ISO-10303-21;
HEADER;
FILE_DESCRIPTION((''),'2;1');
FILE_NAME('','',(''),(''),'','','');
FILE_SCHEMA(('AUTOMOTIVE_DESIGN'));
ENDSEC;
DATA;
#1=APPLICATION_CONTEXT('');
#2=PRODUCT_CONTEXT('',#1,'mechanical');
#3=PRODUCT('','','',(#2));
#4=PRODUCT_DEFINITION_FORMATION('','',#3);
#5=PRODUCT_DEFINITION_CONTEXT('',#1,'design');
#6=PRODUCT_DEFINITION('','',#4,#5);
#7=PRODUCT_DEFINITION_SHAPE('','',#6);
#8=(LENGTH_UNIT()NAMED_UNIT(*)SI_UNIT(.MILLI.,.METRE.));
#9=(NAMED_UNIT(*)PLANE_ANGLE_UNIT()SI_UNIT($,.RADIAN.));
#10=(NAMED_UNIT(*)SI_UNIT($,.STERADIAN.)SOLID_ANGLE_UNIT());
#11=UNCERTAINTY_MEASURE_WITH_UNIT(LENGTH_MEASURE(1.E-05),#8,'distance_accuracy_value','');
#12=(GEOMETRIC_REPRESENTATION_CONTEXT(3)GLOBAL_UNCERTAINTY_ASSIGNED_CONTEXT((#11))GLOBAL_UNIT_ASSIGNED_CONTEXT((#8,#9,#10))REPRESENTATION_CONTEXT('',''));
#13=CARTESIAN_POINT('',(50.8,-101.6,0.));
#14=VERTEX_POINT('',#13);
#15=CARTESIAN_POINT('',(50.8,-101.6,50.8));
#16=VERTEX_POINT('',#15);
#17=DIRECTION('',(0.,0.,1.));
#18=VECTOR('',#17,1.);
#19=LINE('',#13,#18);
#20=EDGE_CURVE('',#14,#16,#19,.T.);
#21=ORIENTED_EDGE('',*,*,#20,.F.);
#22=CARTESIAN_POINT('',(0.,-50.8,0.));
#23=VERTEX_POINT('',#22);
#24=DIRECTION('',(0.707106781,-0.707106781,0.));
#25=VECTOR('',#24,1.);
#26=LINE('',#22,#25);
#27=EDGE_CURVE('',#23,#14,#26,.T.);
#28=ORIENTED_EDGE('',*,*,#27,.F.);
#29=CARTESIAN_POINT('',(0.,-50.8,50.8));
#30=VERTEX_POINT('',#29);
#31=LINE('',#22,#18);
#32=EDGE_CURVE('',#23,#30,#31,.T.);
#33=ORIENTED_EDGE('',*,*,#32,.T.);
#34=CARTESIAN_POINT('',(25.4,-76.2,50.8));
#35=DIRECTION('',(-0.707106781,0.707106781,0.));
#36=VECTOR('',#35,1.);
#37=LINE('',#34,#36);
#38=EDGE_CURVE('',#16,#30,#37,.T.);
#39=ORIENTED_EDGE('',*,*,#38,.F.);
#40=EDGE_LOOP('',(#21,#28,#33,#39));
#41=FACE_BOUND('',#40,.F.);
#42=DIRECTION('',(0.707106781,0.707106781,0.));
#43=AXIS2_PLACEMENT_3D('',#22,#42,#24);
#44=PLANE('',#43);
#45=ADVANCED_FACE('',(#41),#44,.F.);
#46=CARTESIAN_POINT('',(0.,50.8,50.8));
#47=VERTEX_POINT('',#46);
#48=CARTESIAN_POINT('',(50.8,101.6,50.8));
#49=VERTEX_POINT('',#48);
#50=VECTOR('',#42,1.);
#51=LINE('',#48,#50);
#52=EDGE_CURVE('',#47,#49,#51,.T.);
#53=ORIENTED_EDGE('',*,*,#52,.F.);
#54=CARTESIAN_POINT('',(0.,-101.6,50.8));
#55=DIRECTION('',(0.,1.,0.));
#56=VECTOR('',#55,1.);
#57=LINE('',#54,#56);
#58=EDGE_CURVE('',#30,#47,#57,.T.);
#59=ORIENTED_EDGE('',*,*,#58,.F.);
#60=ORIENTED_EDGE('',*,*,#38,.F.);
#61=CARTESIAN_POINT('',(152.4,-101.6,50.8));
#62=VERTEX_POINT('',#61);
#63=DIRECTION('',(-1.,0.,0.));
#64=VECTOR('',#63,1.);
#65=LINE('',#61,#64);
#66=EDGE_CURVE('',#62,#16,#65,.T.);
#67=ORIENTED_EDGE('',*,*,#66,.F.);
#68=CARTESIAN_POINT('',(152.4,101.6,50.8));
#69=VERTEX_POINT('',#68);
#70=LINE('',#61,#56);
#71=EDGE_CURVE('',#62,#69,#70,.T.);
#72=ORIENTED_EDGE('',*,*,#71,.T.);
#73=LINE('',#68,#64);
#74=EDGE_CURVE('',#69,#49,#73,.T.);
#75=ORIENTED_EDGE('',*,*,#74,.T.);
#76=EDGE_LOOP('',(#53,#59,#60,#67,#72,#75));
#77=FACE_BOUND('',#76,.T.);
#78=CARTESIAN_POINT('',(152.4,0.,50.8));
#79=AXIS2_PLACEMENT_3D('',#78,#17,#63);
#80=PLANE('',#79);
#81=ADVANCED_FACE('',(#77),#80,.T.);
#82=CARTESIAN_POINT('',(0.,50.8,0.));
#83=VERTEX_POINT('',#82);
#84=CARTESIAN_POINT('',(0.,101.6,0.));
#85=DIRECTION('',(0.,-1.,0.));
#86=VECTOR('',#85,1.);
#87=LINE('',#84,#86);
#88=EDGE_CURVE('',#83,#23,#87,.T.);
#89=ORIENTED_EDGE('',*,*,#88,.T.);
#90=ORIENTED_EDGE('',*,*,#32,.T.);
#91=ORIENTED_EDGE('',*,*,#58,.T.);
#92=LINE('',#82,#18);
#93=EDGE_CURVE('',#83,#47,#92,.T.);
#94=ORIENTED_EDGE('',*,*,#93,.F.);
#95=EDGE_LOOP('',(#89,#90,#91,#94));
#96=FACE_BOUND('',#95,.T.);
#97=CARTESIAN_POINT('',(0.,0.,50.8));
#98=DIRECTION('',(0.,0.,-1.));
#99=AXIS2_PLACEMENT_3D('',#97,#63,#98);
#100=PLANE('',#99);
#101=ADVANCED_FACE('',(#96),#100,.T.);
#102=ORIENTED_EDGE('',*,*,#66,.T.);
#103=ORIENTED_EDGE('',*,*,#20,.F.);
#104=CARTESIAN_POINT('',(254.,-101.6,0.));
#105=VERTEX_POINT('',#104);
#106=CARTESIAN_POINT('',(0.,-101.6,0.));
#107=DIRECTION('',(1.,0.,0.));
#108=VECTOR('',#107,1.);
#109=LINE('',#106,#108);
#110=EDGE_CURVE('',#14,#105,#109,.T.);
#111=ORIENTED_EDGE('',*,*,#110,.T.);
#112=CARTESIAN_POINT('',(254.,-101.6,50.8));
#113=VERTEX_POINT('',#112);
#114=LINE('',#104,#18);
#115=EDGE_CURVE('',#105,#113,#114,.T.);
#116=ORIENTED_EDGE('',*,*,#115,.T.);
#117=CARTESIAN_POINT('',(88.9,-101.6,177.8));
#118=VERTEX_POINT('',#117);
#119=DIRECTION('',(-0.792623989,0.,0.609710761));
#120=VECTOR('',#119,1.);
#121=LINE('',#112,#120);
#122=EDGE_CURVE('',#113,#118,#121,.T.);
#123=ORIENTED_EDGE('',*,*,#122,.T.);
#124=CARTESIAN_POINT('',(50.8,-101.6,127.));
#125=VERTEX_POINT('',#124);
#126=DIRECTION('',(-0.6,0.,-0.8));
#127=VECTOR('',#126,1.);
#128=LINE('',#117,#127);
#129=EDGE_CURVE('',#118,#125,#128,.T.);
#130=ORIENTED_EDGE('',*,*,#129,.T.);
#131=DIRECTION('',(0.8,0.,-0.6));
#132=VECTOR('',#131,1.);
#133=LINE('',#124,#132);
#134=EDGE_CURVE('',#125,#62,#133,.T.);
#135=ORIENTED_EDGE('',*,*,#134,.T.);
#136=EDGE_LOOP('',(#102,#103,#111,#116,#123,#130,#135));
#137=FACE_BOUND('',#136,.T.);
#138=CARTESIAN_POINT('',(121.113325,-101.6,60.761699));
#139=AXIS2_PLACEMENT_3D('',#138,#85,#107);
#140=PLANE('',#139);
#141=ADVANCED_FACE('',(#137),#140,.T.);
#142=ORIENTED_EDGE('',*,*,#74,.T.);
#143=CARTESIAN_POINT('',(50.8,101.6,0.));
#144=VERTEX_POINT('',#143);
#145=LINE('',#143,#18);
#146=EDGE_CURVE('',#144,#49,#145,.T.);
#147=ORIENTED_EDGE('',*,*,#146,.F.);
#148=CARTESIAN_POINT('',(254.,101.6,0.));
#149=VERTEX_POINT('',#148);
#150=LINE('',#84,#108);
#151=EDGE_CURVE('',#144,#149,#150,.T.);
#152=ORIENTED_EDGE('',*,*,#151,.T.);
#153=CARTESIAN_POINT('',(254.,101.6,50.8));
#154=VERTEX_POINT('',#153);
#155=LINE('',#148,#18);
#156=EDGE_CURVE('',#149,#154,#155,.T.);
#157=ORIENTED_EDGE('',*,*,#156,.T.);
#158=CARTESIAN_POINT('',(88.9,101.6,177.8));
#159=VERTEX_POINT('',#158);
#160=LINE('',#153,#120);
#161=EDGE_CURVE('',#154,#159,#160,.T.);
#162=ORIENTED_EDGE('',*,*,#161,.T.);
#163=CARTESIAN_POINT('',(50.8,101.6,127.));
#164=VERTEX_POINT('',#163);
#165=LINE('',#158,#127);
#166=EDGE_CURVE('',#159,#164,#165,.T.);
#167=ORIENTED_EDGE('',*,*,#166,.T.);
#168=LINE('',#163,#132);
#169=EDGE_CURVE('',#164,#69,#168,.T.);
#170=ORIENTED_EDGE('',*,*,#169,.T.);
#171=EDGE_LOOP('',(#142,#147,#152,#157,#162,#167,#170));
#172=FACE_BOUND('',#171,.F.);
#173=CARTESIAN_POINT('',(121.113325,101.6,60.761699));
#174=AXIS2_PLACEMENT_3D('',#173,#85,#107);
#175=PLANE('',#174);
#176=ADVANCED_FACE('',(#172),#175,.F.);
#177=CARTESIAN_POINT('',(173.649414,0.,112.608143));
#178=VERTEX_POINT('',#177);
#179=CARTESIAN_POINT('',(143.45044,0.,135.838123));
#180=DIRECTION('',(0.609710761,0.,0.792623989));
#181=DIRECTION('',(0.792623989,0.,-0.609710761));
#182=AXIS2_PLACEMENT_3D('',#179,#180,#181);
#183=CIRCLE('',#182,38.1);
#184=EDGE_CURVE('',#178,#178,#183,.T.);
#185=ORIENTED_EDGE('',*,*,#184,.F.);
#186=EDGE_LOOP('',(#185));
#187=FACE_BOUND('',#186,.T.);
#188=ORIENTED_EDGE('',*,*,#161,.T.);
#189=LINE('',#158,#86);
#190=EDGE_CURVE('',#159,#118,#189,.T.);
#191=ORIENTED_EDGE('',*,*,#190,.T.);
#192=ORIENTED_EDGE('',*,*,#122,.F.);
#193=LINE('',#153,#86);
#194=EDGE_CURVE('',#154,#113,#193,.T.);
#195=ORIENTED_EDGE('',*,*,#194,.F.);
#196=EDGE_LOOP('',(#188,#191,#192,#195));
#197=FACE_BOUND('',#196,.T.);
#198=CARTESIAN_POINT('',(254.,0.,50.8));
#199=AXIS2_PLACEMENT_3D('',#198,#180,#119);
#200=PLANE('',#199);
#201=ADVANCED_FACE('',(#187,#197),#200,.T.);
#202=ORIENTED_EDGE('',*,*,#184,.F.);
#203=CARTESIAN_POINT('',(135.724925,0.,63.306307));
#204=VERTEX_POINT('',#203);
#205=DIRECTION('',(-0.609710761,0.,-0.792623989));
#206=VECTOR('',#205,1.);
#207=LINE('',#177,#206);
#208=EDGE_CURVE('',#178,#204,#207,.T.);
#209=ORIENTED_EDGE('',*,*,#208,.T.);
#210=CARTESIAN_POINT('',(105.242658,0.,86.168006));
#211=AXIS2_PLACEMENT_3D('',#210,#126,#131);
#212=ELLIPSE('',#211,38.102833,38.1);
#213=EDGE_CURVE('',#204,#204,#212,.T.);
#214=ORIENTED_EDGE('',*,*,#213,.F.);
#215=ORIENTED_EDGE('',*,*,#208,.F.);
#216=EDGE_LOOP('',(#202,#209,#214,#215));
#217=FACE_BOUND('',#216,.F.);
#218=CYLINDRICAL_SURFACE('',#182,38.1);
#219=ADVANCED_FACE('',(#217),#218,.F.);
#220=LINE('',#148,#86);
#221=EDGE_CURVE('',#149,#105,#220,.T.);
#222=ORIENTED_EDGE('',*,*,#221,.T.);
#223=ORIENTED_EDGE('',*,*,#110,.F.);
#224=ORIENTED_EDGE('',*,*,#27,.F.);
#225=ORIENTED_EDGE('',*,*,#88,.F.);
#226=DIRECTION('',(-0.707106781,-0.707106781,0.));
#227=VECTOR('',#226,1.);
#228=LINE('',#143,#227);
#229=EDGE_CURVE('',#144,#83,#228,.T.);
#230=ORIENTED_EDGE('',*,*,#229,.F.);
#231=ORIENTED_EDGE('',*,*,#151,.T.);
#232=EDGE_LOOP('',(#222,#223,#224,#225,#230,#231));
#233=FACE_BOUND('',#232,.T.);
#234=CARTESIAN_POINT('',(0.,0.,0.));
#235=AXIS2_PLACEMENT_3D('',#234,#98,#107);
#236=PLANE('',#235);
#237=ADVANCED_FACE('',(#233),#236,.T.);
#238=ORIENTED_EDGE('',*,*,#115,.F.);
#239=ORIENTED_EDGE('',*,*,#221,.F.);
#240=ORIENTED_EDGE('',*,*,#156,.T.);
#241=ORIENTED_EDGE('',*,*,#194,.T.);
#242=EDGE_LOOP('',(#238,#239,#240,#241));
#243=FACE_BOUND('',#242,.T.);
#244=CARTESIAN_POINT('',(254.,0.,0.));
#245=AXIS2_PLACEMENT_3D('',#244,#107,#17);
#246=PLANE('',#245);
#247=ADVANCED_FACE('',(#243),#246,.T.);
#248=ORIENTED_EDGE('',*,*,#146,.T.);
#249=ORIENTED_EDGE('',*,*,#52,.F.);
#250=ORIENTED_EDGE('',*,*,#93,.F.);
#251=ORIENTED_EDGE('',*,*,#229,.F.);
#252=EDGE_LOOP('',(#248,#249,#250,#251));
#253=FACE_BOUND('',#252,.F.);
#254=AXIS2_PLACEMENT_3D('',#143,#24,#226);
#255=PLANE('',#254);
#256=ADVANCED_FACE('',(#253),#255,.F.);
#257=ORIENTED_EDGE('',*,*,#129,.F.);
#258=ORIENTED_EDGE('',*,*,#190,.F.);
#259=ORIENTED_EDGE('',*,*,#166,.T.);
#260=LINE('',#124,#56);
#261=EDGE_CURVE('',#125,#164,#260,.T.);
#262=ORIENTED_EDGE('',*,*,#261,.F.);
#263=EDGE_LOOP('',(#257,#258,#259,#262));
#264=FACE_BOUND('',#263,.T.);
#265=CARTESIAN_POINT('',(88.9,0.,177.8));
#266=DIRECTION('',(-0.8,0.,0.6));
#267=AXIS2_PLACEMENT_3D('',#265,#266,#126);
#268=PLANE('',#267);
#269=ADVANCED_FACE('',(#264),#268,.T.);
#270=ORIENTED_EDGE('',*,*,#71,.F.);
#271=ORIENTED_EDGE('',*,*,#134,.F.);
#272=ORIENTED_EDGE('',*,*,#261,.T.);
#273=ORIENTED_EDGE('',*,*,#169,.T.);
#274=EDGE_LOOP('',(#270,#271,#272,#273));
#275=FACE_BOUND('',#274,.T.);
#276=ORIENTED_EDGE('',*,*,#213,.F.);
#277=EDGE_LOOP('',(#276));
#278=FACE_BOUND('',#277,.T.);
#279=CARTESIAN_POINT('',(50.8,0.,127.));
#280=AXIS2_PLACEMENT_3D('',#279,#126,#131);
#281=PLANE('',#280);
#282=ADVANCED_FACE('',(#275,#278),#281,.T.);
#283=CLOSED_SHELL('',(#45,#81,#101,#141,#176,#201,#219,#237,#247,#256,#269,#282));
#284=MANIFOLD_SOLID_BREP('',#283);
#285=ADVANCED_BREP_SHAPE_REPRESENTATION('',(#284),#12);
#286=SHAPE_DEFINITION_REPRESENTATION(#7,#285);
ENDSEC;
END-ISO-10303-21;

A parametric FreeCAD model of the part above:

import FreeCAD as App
import Part
import Sketcher
from FreeCAD import Vector
Q = App.Units.Quantity

doc = App.newDocument("Part")
body = doc.addObject("PartDesign::Body", "Body")

# Sketch on XZ plane
sketch1 = body.newObject("Sketcher::SketchObject", "Sketch")
sketch1.AttachmentSupport = (doc.getObject("XZ_Plane"), [""])
sketch1.MapMode = "FlatFace"
sketch1.addGeometry([
    Part.LineSegment(Vector(0, 50.8, 0), Vector(0, 0, 0)),  # 0
    Part.LineSegment(Vector(0, 0, 0), Vector(254, 0, 0)),  # 1
    Part.LineSegment(Vector(254, 0, 0), Vector(254, 50.8, 0)),  # 2
    Part.LineSegment(Vector(254, 50.8, 0), Vector(88.9, 177.8, 0)),  # 3
    Part.LineSegment(Vector(88.9, 177.8, 0), Vector(50.8, 127, 0)),  # 4
    Part.LineSegment(Vector(50.8, 127, 0), Vector(152.4, 50.8, 0)),  # 5
    Part.LineSegment(Vector(152.4, 50.8, 0), Vector(0, 50.8, 0)),  # 6
], False)
sketch1.addConstraint([
    Sketcher.Constraint("Coincident", 0, 2, 1, 1),
    Sketcher.Constraint("Coincident", 1, 2, 2, 1),
    Sketcher.Constraint("Coincident", 2, 2, 3, 1),
    Sketcher.Constraint("Coincident", 3, 2, 4, 1),
    Sketcher.Constraint("Coincident", 4, 2, 5, 1),
    Sketcher.Constraint("Coincident", 5, 2, 6, 1),
    Sketcher.Constraint("Coincident", 6, 2, 0, 1),
    Sketcher.Constraint("Vertical", 0),
    Sketcher.Constraint("Horizontal", 1),
    Sketcher.Constraint("Vertical", 2),
    Sketcher.Constraint("Horizontal", 6),
    Sketcher.Constraint("Coincident", 0, 2, -1, 1),
    Sketcher.Constraint("Perpendicular", 4, 5),
    Sketcher.Constraint("Horizontal", 2, 2, 5, 2),
    Sketcher.Constraint("DistanceX", 1, 1, 1, 2, Q("10 in")),
    Sketcher.Constraint("DistanceX", 6, 2, 6, 1, Q("6 in")),
    Sketcher.Constraint("DistanceY", 0, 2, 0, 1, Q("2 in")),
    Sketcher.Constraint("Distance", 5, Q("5 in")),
    Sketcher.Constraint("DistanceY", -1, 1, 3, 2, Q("7 in")),
    Sketcher.Constraint("DistanceX", -1, 1, 4, 2, Q("2 in")),
])
pad1 = body.newObject("PartDesign::Pad", "Pad")
pad1.Profile = sketch1
pad1.Length = Q("8 in")
pad1.Midplane = True

# Sketch on an angled plane
sketch2 = body.newObject("Sketcher::SketchObject", "Sketch001")
sketch2.Placement = App.Placement(Vector(118.973978, 0, 154.666171), App.Rotation(Vector(0.792623989, 0, -0.609710761), Vector(0, 1, 0), Vector(0.609710761, 0, 0.792623989), "ZXY"))
sketch2.addGeometry(Part.Circle(Vector(30.880295, 0, 0), Vector(0, 0, 1), 38.1), False)
sketch2.addConstraint([
    Sketcher.Constraint("PointOnObject", 0, 3, -1),
    Sketcher.Constraint("Diameter", 0, Q("3 in")),
    Sketcher.Constraint("DistanceX", -1, 1, 0, 3, Q("30.880295 mm")),
])
pocket1 = body.newObject("PartDesign::Pocket", "Pocket")
pocket1.Profile = sketch2
pocket1.Length = Q("2.93 in")

# Sketch on XY plane
sketch3 = body.newObject("Sketcher::SketchObject", "Sketch002")
sketch3.AttachmentSupport = (doc.getObject("XY_Plane"), [""])
sketch3.MapMode = "FlatFace"
sketch3.addGeometry([
    Part.LineSegment(Vector(0, 50.8, 0), Vector(0, 101.6, 0)),  # 0
    Part.LineSegment(Vector(0, 101.6, 0), Vector(50.8, 101.6, 0)),  # 1
    Part.LineSegment(Vector(50.8, 101.6, 0), Vector(0, 50.8, 0)),  # 2
    Part.LineSegment(Vector(0, -101.6, 0), Vector(0, -50.8, 0)),  # 3
    Part.LineSegment(Vector(0, -50.8, 0), Vector(50.8, -101.6, 0)),  # 4
    Part.LineSegment(Vector(50.8, -101.6, 0), Vector(0, -101.6, 0)),  # 5
], False)
sketch3.addConstraint([
    Sketcher.Constraint("Coincident", 0, 2, 1, 1),
    Sketcher.Constraint("Coincident", 1, 2, 2, 1),
    Sketcher.Constraint("Coincident", 2, 2, 0, 1),
    Sketcher.Constraint("Coincident", 3, 2, 4, 1),
    Sketcher.Constraint("Coincident", 4, 2, 5, 1),
    Sketcher.Constraint("Coincident", 5, 2, 3, 1),
    Sketcher.Constraint("Vertical", 0),
    Sketcher.Constraint("Horizontal", 1),
    Sketcher.Constraint("Vertical", 3),
    Sketcher.Constraint("Horizontal", 5),
    Sketcher.Constraint("Symmetric", 2, 2, 3, 2, -1, 1),
    Sketcher.Constraint("Symmetric", 1, 2, 4, 2, -1),
    Sketcher.Constraint("PointOnObject", 0, 2, -2),
    Sketcher.Constraint("Perpendicular", 2, 4),
    Sketcher.Constraint("DistanceX", 1, 1, 1, 2, Q("2 in")),
    Sketcher.Constraint("DistanceY", -1, 1, 0, 2, Q("4 in")),
])
pocket2 = body.newObject("PartDesign::Pocket", "Pocket001")
pocket2.Profile = sketch3
pocket2.Length = Q("2.84 in")
pocket2.Reversed = True

doc.recompute()
